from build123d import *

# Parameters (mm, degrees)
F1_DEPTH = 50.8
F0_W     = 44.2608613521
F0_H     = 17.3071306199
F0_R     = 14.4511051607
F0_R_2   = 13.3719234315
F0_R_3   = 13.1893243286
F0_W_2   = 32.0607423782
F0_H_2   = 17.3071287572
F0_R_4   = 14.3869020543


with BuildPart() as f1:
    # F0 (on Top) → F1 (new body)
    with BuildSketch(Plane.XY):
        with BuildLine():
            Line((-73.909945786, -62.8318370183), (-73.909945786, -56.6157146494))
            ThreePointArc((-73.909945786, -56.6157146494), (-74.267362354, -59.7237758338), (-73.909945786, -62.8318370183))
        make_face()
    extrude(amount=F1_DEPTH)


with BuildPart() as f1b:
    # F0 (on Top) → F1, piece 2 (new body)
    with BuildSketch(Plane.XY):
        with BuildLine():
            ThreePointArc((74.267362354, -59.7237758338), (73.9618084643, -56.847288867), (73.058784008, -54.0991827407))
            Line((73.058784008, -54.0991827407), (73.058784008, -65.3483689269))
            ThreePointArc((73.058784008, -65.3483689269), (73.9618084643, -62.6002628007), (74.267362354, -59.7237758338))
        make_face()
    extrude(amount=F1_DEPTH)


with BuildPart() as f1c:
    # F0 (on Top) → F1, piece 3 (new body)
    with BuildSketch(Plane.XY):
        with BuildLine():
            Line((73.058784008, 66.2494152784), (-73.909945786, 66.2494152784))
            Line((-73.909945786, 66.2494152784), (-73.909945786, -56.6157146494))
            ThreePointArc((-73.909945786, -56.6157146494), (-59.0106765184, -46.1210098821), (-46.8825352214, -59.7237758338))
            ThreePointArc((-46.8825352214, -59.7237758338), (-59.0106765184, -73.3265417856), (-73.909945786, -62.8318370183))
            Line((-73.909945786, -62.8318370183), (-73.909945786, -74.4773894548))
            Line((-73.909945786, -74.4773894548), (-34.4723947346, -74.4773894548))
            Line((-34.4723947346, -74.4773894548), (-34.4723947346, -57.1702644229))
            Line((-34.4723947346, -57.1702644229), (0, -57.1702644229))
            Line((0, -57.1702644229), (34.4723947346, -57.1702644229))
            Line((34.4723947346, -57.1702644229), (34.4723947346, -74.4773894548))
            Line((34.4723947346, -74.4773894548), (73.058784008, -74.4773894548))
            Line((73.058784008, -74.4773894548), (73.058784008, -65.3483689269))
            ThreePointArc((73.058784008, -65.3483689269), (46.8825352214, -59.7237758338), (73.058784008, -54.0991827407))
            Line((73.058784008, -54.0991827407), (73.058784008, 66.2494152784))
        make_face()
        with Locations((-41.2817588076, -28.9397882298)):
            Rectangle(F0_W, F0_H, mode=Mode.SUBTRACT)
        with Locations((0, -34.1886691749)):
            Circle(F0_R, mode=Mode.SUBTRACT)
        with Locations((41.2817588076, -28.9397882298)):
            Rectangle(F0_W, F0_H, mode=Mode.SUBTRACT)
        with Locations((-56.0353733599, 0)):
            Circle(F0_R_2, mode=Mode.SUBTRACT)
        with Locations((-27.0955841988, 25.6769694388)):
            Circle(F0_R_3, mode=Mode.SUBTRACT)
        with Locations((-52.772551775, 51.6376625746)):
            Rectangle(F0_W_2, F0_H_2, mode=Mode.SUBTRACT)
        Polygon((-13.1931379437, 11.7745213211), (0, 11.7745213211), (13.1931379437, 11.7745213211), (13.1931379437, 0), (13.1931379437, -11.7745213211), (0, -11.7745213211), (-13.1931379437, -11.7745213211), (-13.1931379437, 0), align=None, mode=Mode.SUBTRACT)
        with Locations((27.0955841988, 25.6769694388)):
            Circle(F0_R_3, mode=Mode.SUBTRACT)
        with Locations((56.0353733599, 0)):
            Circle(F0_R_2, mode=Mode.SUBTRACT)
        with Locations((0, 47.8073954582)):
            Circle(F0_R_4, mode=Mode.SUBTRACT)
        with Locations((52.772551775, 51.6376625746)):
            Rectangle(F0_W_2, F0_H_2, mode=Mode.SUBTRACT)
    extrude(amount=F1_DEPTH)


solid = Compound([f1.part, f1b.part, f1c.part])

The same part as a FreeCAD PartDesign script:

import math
import FreeCAD as App
import Part
import Sketcher

V = App.Vector
Q = App.Units.Quantity

doc = App.newDocument("Part")
body = doc.addObject("PartDesign::Body", "Body")

# Sketch on XY plane
sketch1 = body.newObject("Sketcher::SketchObject", "Sketch")
sketch1.AttachmentSupport = (doc.getObject("XY_Plane"), [""])
sketch1.MapMode = "FlatFace"
sketch1.addGeometry(Part.LineSegment(V(-74, -63, 0), V(-74, -57, 0)), False)
sketch1.addGeometry(Part.ArcOfCircle(Part.Circle(V(-61, -60, 0), V(0, 0, 1), 14), math.radians(167), math.radians(193)), False)
sketch1.addConstraint(Sketcher.Constraint("Coincident", 0, 1, 1, 2))
sketch1.addConstraint(Sketcher.Constraint("Coincident", 1, 1, 0, 2))
sketch1.addConstraint(Sketcher.Constraint("Vertical", 0))
sketch1.addConstraint(Sketcher.Constraint("DistanceX", 0, 1, 1, 3, Q("0.5249999 in")))
sketch1.addConstraint(Sketcher.Constraint("Radius", 1, Q("13.692414 mm")))
sketch1.addConstraint(Sketcher.Constraint("DistanceX", 1, 3, -1, 1, Q("60.574949 mm")))
sketch1.addConstraint(Sketcher.Constraint("DistanceY", 1, 3, -1, 1, Q("59.723776 mm")))
pad1 = body.newObject("PartDesign::Pad", "Pad")
pad1.Profile = sketch1
pad1.Length = Q("2 in")
body2 = doc.addObject("PartDesign::Body", "Body001")

# Sketch on XY plane
sketch2 = body2.newObject("Sketcher::SketchObject", "Sketch001")
sketch2.AttachmentSupport = (doc.getObject("XY_Plane001"), [""])
sketch2.MapMode = "FlatFace"
sketch2.addGeometry(Part.ArcOfCircle(Part.Circle(V(61, -60, 0), V(0, 0, 1), 14), math.radians(0), math.radians(24)), False)
sketch2.addGeometry(Part.LineSegment(V(73, -54, 0), V(73, -65, 0)), False)
sketch2.addGeometry(Part.ArcOfCircle(Part.Circle(V(61, -60, 0), V(0, 0, 1), 14), math.radians(-24), math.radians(0)), False)
sketch2.addConstraint(Sketcher.Constraint("Coincident", 0, 2, 1, 1))
sketch2.addConstraint(Sketcher.Constraint("Coincident", 1, 2, 2, 1))
sketch2.addConstraint(Sketcher.Constraint("Tangent", 2, 2, 0, 1))
sketch2.addConstraint(Sketcher.Constraint("Vertical", 1))
sketch2.addConstraint(Sketcher.Constraint("Equal", 0, 2))
sketch2.addConstraint(Sketcher.Constraint("Horizontal", 0, 3, 2, 2))
sketch2.addConstraint(Sketcher.Constraint("Radius", 0, Q("13.692414 mm")))
sketch2.addConstraint(Sketcher.Constraint("DistanceY", 1, 2, 1, 1, Q("11.249186 mm")))
sketch2.addConstraint(Sketcher.Constraint("DistanceX", -1, 1, 0, 3, Q("60.574949 mm")))
sketch2.addConstraint(Sketcher.Constraint("DistanceY", 1, 2, -1, 1, Q("65.348369 mm")))
pad2 = body2.newObject("PartDesign::Pad", "Pad001")
pad2.Profile = sketch2
pad2.Length = Q("2 in")
body3 = doc.addObject("PartDesign::Body", "Body002")

# Sketch on XY plane
sketch3 = body3.newObject("Sketcher::SketchObject", "Sketch002")
sketch3.AttachmentSupport = (doc.getObject("XY_Plane002"), [""])
sketch3.MapMode = "FlatFace"
sketch3.addGeometry(Part.LineSegment(V(73, 66, 0), V(-74, 66, 0)), False)
sketch3.addGeometry(Part.LineSegment(V(-74, 66, 0), V(-74, -57, 0)), False)
sketch3.addGeometry(Part.ArcOfCircle(Part.Circle(V(-61, -60, 0), V(0, 0, 1), 14), math.radians(-167), math.radians(167)), False)
sketch3.addGeometry(Part.LineSegment(V(-74, -63, 0), V(-74, -74, 0)), False)
sketch3.addGeometry(Part.LineSegment(V(-74, -74, 0), V(-34, -74, 0)), False)
sketch3.addGeometry(Part.LineSegment(V(-34, -74, 0), V(-34, -57, 0)), False)
sketch3.addGeometry(Part.LineSegment(V(-34, -57, 0), V(34, -57, 0)), False)
sketch3.addGeometry(Part.LineSegment(V(34, -57, 0), V(34, -74, 0)), False)
sketch3.addGeometry(Part.LineSegment(V(34, -74, 0), V(73, -74, 0)), False)
sketch3.addGeometry(Part.LineSegment(V(73, -74, 0), V(73, -65, 0)), False)
sketch3.addGeometry(Part.ArcOfCircle(Part.Circle(V(61, -60, 0), V(0, 0, 1), 14), math.radians(24), math.radians(336)), False)
sketch3.addGeometry(Part.LineSegment(V(73, -54, 0), V(73, 66, 0)), False)
sketch3.addGeometry(Part.LineSegment(V(-19, -38, 0), V(-63, -38, 0)), False)
sketch3.addGeometry(Part.LineSegment(V(-63, -38, 0), V(-63, -20, 0)), False)
sketch3.addGeometry(Part.LineSegment(V(-63, -20, 0), V(-19, -20, 0)), False)
sketch3.addGeometry(Part.LineSegment(V(-19, -20, 0), V(-19, -38, 0)), False)
sketch3.addGeometry(Part.Circle(V(-56, 0, 0), V(0, 0, 1), 13), False)
sketch3.addGeometry(Part.Circle(V(0, -34, 0), V(0, 0, 1), 14), False)
sketch3.addGeometry(Part.LineSegment(V(63, -38, 0), V(19, -38, 0)), False)
sketch3.addGeometry(Part.LineSegment(V(19, -38, 0), V(19, -20, 0)), False)
sketch3.addGeometry(Part.LineSegment(V(19, -20, 0), V(63, -20, 0)), False)
sketch3.addGeometry(Part.LineSegment(V(63, -20, 0), V(63, -38, 0)), False)
sketch3.addGeometry(Part.LineSegment(V(-13, -12, 0), V(-13, 12, 0)), False)
sketch3.addGeometry(Part.LineSegment(V(-13, 12, 0), V(13, 12, 0)), False)
sketch3.addGeometry(Part.LineSegment(V(13, 12, 0), V(13, -12, 0)), False)
sketch3.addGeometry(Part.LineSegment(V(13, -12, 0), V(-13, -12, 0)), False)
sketch3.addGeometry(Part.Circle(V(56, 0, 0), V(0, 0, 1), 13), False)
sketch3.addGeometry(Part.Circle(V(-27, 26, 0), V(0, 0, 1), 13), False)
sketch3.addGeometry(Part.LineSegment(V(-37, 43, 0), V(-69, 43, 0)), False)
sketch3.addGeometry(Part.LineSegment(V(-69, 43, 0), V(-69, 60, 0)), False)
sketch3.addGeometry(Part.LineSegment(V(-69, 60, 0), V(-37, 60, 0)), False)
sketch3.addGeometry(Part.LineSegment(V(-37, 60, 0), V(-37, 43, 0)), False)
sketch3.addGeometry(Part.Circle(V(27, 26, 0), V(0, 0, 1), 13), False)
sketch3.addGeometry(Part.Circle(V(0, 48, 0), V(0, 0, 1), 14), False)
sketch3.addGeometry(Part.LineSegment(V(69, 43, 0), V(37, 43, 0)), False)
sketch3.addGeometry(Part.LineSegment(V(37, 43, 0), V(37, 60, 0)), False)
sketch3.addGeometry(Part.LineSegment(V(37, 60, 0), V(69, 60, 0)), False)
sketch3.addGeometry(Part.LineSegment(V(69, 60, 0), V(69, 43, 0)), False)
sketch3.addConstraint(Sketcher.Constraint("Coincident", 0, 2, 1, 1))
sketch3.addConstraint(Sketcher.Constraint("Coincident", 1, 2, 2, 2))
sketch3.addConstraint(Sketcher.Constraint("Coincident", 2, 1, 3, 1))
sketch3.addConstraint(Sketcher.Constraint("Coincident", 3, 2, 4, 1))
sketch3.addConstraint(Sketcher.Constraint("Coincident", 4, 2, 5, 1))
sketch3.addConstraint(Sketcher.Constraint("Coincident", 5, 2, 6, 1))
sketch3.addConstraint(Sketcher.Constraint("Coincident", 6, 2, 7, 1))
sketch3.addConstraint(Sketcher.Constraint("Coincident", 7, 2, 8, 1))
sketch3.addConstraint(Sketcher.Constraint("Coincident", 8, 2, 9, 1))
sketch3.addConstraint(Sketcher.Constraint("Coincident", 9, 2, 10, 2))
sketch3.addConstraint(Sketcher.Constraint("Coincident", 10, 1, 11, 1))
sketch3.addConstraint(Sketcher.Constraint("Coincident", 11, 2, 0, 1))
sketch3.addConstraint(Sketcher.Constraint("Coincident", 12, 2, 13, 1))
sketch3.addConstraint(Sketcher.Constraint("Coincident", 13, 2, 14, 1))
sketch3.addConstraint(Sketcher.Constraint("Coincident", 14, 2, 15, 1))
sketch3.addConstraint(Sketcher.Constraint("Coincident", 15, 2, 12, 1))
sketch3.addConstraint(Sketcher.Constraint("Coincident", 18, 2, 19, 1))
sketch3.addConstraint(Sketcher.Constraint("Coincident", 19, 2, 20, 1))
sketch3.addConstraint(Sketcher.Constraint("Coincident", 20, 2, 21, 1))
sketch3.addConstraint(Sketcher.Constraint("Coincident", 21, 2, 18, 1))
sketch3.addConstraint(Sketcher.Constraint("Coincident", 22, 2, 23, 1))
sketch3.addConstraint(Sketcher.Constraint("Coincident", 23, 2, 24, 1))
sketch3.addConstraint(Sketcher.Constraint("Coincident", 24, 2, 25, 1))
sketch3.addConstraint(Sketcher.Constraint("Coincident", 25, 2, 22, 1))
sketch3.addConstraint(Sketcher.Constraint("Coincident", 28, 2, 29, 1))
sketch3.addConstraint(Sketcher.Constraint("Coincident", 29, 2, 30, 1))
sketch3.addConstraint(Sketcher.Constraint("Coincident", 30, 2, 31, 1))
sketch3.addConstraint(Sketcher.Constraint("Coincident", 31, 2, 28, 1))
sketch3.addConstraint(Sketcher.Constraint("Coincident", 34, 2, 35, 1))
sketch3.addConstraint(Sketcher.Constraint("Coincident", 35, 2, 36, 1))
sketch3.addConstraint(Sketcher.Constraint("Coincident", 36, 2, 37, 1))
sketch3.addConstraint(Sketcher.Constraint("Coincident", 37, 2, 34, 1))
sketch3.addConstraint(Sketcher.Constraint("Horizontal", 0))
sketch3.addConstraint(Sketcher.Constraint("Vertical", 1))
sketch3.addConstraint(Sketcher.Constraint("Vertical", 3))
sketch3.addConstraint(Sketcher.Constraint("Horizontal", 4))
sketch3.addConstraint(Sketcher.Constraint("Vertical", 5))
sketch3.addConstraint(Sketcher.Constraint("Horizontal", 6))
sketch3.addConstraint(Sketcher.Constraint("Vertical", 7))
sketch3.addConstraint(Sketcher.Constraint("Horizontal", 8))
sketch3.addConstraint(Sketcher.Constraint("Vertical", 9))
sketch3.addConstraint(Sketcher.Constraint("Vertical", 11))
sketch3.addConstraint(Sketcher.Constraint("Horizontal", 12))
sketch3.addConstraint(Sketcher.Constraint("Vertical", 13))
sketch3.addConstraint(Sketcher.Constraint("Horizontal", 14))
sketch3.addConstraint(Sketcher.Constraint("Vertical", 15))
sketch3.addConstraint(Sketcher.Constraint("Horizontal", 18))
sketch3.addConstraint(Sketcher.Constraint("Vertical", 19))
sketch3.addConstraint(Sketcher.Constraint("Horizontal", 20))
sketch3.addConstraint(Sketcher.Constraint("Vertical", 21))
sketch3.addConstraint(Sketcher.Constraint("Vertical", 22))
sketch3.addConstraint(Sketcher.Constraint("Horizontal", 23))
sketch3.addConstraint(Sketcher.Constraint("Vertical", 24))
sketch3.addConstraint(Sketcher.Constraint("Horizontal", 25))
sketch3.addConstraint(Sketcher.Constraint("Horizontal", 28))
sketch3.addConstraint(Sketcher.Constraint("Vertical", 29))
sketch3.addConstraint(Sketcher.Constraint("Horizontal", 30))
sketch3.addConstraint(Sketcher.Constraint("Vertical", 31))
sketch3.addConstraint(Sketcher.Constraint("Horizontal", 34))
sketch3.addConstraint(Sketcher.Constraint("Vertical", 35))
sketch3.addConstraint(Sketcher.Constraint("Horizontal", 36))
sketch3.addConstraint(Sketcher.Constraint("Vertical", 37))
sketch3.addConstraint(Sketcher.Constraint("Equal", 2, 10))
sketch3.addConstraint(Sketcher.Constraint("Equal", 16, 26))
sketch3.addConstraint(Sketcher.Constraint("Equal", 27, 32))
sketch3.addConstraint(Sketcher.Constraint("Symmetric", 16, 3, 26, 3, -1, 1))
sketch3.addConstraint(Sketcher.Constraint("Symmetric", 22, 2, 24, 2, -1, 1))
sketch3.addConstraint(Sketcher.Constraint("Symmetric", 2, 3, 10, 3, -2))
sketch3.addConstraint(Sketcher.Constraint("Symmetric", 27, 3, 32, 3, -2))
sketch3.addConstraint(Sketcher.Constraint("Symmetric", 4, 2, 7, 2, -2))
sketch3.addConstraint(Sketcher.Constraint("Symmetric", 15, 2, 18, 2, -2))
sketch3.addConstraint(Sketcher.Constraint("Symmetric", 13, 2, 20, 2, -2))
sketch3.addConstraint(Sketcher.Constraint("Symmetric", 31, 2, 34, 2, -2))
sketch3.addConstraint(Sketcher.Constraint("Symmetric", 29, 2, 36, 2, -2))
sketch3.addConstraint(Sketcher.Constraint("PointOnObject", 16, 3, -1))
sketch3.addConstraint(Sketcher.Constraint("PointOnObject", 17, 3, -2))
sketch3.addConstraint(Sketcher.Constraint("PointOnObject", 33, 3, -2))
sketch3.addConstraint(Sketcher.Constraint("Vertical", 1, 2, 2, 1))
sketch3.addConstraint(Sketcher.Constraint("Vertical", 9, 2, 10, 1))
sketch3.addConstraint(Sketcher.Constraint("Equal", 21, 29))
sketch3.addConstraint(Sketcher.Constraint("Diameter", 17, Q("28.90221 mm")))
sketch3.addConstraint(Sketcher.Constraint("Diameter", 27, Q("26.378649 mm")))
sketch3.addConstraint(Sketcher.Constraint("DistanceX", 1, 2, 2, 3, Q("0.5249999 in")))
sketch3.addConstraint(Sketcher.Constraint("Diameter", 16, Q("26.743847 mm")))
sketch3.addConstraint(Sketcher.Constraint("Diameter", 33, Q("28.773804 mm")))
sketch3.addConstraint(Sketcher.Constraint("DistanceY", 11, 1, 11, 2, Q("120.348598 mm")))
sketch3.addConstraint(Sketcher.Constraint("Radius", 2, Q("13.692414 mm")))
sketch3.addConstraint(Sketcher.Constraint("DistanceX", 0, 2, 0, 1, Q("146.96873 mm")))
sketch3.addConstraint(Sketcher.Constraint("DistanceX", 4, 1, 4, 2, Q("39.437551 mm")))
sketch3.addConstraint(Sketcher.Constraint("DistanceX", 6, 1, 6, 2, Q("68.944789 mm")))
sketch3.addConstraint(Sketcher.Constraint("DistanceX", 12, 2, 12, 1, Q("44.260861 mm")))
sketch3.addConstraint(Sketcher.Constraint("DistanceY", 9, 1, 9, 2, Q("9.129021 mm")))
sketch3.addConstraint(Sketcher.Constraint("DistanceY", 13, 1, 13, 2, Q("17.307131 mm")))
sketch3.addConstraint(Sketcher.Constraint("DistanceY", -1, 1, 28, 2, Q("42.984098 mm")))
sketch3.addConstraint(Sketcher.Constraint("DistanceX", 32, 3, 11, 2, Q("45.9632 mm")))
sketch3.addConstraint(Sketcher.Constraint("DistanceY", 19, 2, 24, 2, Q("8.511702 mm")))
sketch3.addConstraint(Sketcher.Constraint("DistanceX", 23, 1, 23, 2, Q("26.386276 mm")))
sketch3.addConstraint(Sketcher.Constraint("DistanceX", 28, 2, 28, 1, Q("32.060742 mm")))
sketch3.addConstraint(Sketcher.Constraint("DistanceY", 5, 1, 5, 2, Q("17.307125 mm")))
sketch3.addConstraint(Sketcher.Constraint("DistanceY", 22, 1, 22, 2, Q("23.549043 mm")))
sketch3.addConstraint(Sketcher.Constraint("DistanceY", 17, 3, -1, 1, Q("34.188669 mm")))
sketch3.addConstraint(Sketcher.Constraint("DistanceY", -1, 1, 27, 3, Q("25.676969 mm")))
sketch3.addConstraint(Sketcher.Constraint("DistanceY", 3, 2, -1, 1, Q("74.477389 mm")))
sketch3.addConstraint(Sketcher.Constraint("DistanceX", 12, 2, -1, 1, Q("63.412189 mm")))
sketch3.addConstraint(Sketcher.Constraint("DistanceX", 30, 2, -1, 1, Q("36.742181 mm")))
sketch3.addConstraint(Sketcher.Constraint("DistanceX", 16, 3, 27, 3, Q("28.939789 mm")))
sketch3.addConstraint(Sketcher.Constraint("DistanceY", 33, 3, 0, 2, Q("18.44202 mm")))
pad3 = body3.newObject("PartDesign::Pad", "Pad002")
pad3.Profile = sketch3
pad3.Length = Q("2 in")

doc.recompute()
